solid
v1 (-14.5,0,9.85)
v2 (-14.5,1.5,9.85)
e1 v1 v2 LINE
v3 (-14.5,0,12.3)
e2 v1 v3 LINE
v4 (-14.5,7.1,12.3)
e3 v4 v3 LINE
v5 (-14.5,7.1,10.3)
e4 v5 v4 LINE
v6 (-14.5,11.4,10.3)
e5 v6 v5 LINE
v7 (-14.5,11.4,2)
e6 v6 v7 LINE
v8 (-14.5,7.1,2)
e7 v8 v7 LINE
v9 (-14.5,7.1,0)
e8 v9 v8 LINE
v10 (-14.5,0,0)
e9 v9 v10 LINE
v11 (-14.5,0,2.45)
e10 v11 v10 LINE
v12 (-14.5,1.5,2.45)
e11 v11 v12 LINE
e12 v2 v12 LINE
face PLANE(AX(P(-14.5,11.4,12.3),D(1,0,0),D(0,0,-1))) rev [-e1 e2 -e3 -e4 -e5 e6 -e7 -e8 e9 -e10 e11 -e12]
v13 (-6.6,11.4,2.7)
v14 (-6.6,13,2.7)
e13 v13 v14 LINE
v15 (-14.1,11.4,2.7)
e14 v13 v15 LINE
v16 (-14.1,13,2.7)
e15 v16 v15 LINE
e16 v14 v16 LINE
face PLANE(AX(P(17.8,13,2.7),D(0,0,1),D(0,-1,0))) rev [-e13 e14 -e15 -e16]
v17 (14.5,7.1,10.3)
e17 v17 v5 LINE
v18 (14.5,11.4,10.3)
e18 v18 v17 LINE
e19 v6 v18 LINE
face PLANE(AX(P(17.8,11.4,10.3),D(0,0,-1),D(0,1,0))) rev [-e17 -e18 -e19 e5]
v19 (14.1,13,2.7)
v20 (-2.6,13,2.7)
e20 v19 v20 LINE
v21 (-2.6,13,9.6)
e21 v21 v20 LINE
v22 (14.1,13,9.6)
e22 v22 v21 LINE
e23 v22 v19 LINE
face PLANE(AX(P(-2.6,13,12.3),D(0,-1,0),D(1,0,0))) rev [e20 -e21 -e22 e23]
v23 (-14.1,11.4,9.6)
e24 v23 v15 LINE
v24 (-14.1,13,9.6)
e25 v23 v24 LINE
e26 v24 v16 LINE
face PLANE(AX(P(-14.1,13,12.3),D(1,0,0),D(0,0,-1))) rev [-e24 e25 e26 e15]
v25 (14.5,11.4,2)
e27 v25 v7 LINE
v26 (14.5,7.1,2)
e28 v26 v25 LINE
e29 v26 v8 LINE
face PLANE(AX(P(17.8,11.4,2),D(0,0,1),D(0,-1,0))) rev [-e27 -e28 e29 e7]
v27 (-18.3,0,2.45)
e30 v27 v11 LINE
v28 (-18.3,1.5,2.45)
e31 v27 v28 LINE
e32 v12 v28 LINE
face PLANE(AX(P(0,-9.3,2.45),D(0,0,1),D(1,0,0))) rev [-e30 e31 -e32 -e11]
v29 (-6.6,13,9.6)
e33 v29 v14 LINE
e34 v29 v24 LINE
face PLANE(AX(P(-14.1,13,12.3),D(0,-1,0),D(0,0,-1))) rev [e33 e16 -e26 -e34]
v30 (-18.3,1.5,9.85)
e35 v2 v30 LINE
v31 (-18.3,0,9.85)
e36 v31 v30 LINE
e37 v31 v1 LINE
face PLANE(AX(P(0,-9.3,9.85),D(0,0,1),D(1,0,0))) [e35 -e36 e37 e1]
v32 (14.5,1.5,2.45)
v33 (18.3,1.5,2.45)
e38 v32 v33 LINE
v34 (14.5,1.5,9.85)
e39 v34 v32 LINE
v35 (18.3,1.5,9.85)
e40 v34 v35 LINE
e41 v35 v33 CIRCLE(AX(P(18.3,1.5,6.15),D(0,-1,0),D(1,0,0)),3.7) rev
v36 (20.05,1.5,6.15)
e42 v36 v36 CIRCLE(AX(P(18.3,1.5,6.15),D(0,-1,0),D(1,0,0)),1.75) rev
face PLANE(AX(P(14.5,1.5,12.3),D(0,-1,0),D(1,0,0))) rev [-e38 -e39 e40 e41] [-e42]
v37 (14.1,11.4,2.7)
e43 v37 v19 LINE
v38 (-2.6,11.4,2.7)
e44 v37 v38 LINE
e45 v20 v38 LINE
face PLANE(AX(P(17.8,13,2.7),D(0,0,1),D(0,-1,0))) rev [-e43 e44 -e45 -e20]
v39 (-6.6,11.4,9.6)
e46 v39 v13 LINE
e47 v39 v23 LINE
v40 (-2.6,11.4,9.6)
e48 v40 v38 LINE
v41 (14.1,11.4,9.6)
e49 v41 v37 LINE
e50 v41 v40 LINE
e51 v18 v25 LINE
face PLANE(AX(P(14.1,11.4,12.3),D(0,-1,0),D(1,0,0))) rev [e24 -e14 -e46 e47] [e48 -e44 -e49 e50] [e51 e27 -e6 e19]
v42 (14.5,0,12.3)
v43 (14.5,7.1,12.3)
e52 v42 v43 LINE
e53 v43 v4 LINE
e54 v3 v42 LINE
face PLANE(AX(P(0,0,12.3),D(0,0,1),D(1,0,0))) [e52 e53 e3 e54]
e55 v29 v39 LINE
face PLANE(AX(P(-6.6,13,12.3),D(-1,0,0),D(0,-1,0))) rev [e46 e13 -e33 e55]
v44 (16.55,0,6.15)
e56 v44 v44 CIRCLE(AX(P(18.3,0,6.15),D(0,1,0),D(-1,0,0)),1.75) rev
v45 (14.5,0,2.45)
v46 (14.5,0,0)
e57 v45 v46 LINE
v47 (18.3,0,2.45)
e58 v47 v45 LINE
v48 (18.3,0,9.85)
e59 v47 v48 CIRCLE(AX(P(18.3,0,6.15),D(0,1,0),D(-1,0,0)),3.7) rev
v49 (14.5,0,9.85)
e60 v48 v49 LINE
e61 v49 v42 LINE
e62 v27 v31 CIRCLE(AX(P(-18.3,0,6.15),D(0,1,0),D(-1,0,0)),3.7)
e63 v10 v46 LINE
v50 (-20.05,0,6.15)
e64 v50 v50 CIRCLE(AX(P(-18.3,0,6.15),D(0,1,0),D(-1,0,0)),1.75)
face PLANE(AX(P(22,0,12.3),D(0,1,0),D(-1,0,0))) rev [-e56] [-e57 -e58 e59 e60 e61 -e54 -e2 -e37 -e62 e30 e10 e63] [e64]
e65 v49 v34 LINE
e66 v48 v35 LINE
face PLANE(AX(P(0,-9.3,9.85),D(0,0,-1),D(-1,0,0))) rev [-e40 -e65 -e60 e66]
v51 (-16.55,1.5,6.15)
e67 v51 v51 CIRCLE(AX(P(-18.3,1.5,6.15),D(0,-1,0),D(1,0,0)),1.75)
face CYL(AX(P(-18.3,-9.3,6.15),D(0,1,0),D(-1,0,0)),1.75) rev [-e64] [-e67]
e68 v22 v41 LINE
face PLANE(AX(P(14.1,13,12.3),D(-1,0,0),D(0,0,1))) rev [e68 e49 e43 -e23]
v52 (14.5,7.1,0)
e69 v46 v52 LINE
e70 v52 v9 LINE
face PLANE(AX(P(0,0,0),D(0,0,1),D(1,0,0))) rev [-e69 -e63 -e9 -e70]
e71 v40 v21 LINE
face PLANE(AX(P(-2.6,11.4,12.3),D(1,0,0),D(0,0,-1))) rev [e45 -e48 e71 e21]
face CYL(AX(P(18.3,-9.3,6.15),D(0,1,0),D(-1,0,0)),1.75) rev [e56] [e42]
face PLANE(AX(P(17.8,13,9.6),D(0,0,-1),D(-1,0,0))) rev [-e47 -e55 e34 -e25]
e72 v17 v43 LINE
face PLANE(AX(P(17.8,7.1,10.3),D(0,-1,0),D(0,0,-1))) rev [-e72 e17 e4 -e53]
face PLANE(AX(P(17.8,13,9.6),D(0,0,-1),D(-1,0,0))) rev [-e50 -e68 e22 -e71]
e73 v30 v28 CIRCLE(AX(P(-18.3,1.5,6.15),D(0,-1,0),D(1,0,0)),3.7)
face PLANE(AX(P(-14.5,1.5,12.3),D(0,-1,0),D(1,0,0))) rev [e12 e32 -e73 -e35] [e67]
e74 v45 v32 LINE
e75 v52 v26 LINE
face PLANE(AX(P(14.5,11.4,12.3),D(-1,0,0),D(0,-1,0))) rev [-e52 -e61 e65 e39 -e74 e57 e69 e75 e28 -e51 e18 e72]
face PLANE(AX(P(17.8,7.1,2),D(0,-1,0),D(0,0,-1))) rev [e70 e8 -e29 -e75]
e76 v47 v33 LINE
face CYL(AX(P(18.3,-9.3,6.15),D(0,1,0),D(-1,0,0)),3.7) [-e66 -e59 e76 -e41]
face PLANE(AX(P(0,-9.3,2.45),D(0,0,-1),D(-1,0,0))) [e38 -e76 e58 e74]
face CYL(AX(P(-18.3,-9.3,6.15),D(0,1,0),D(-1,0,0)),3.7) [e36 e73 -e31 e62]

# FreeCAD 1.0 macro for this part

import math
import FreeCAD as App
import Part
import Sketcher
from FreeCAD import Vector
Q = App.Units.Quantity


def add_polygon(sketch, points):
    """Adds a closed chain of lines whose ends are joined by coincident constraints."""
    first, n = sketch.GeometryCount, len(points)
    for a, b in zip(points, points[1:] + points[:1]):
        sketch.addGeometry(Part.LineSegment(App.Vector(*a, 0), App.Vector(*b, 0)), False)
    for i in range(n):
        sketch.addConstraint(Sketcher.Constraint("Coincident", first + i, 2, first + (i + 1) % n, 1))

doc = App.newDocument("Part")
body = doc.addObject("PartDesign::Body", "Body")

sketch1 = doc.addObject("Sketcher::SketchObject", "Sketch")
body.addObject(sketch1)
sketch1.AttachmentSupport = (doc.XY_Plane, [""])
sketch1.MapMode = "FlatFace"
add_polygon(sketch1, [(-14.1, 13), (-14.1, 11.4), (-14.5, 11.4), (-14.5, 1.5), (-22, 1.5), (-22, 0), (22, 0), (22, 1.5), (14.5, 1.5), (14.5, 11.4), (14.1, 11.4), (14.1, 13), (-2.6, 13), (-2.6, 11.4), (-6.6, 11.4), (-6.6, 13)])
sketch1.addConstraint(Sketcher.Constraint("Vertical", 0))
sketch1.addConstraint(Sketcher.Constraint("Horizontal", 1))
sketch1.addConstraint(Sketcher.Constraint("Vertical", 2))
sketch1.addConstraint(Sketcher.Constraint("Horizontal", 3))
sketch1.addConstraint(Sketcher.Constraint("Vertical", 4))
sketch1.addConstraint(Sketcher.Constraint("Horizontal", 5))
sketch1.addConstraint(Sketcher.Constraint("Vertical", 6))
sketch1.addConstraint(Sketcher.Constraint("Horizontal", 7))
sketch1.addConstraint(Sketcher.Constraint("Vertical", 8))
sketch1.addConstraint(Sketcher.Constraint("Horizontal", 9))
sketch1.addConstraint(Sketcher.Constraint("Vertical", 10))
sketch1.addConstraint(Sketcher.Constraint("Horizontal", 11))
sketch1.addConstraint(Sketcher.Constraint("Vertical", 12))
sketch1.addConstraint(Sketcher.Constraint("Horizontal", 13))
sketch1.addConstraint(Sketcher.Constraint("Vertical", 14))
sketch1.addConstraint(Sketcher.Constraint("Horizontal", 15))
sketch1.addConstraint(Sketcher.Constraint("Symmetric", 4, 2, 5, 2, -1, 1))
sketch1.addConstraint(Sketcher.Constraint("Symmetric", 2, 2, 7, 2, -2))
sketch1.addConstraint(Sketcher.Constraint("Symmetric", 0, 2, 9, 2, -2))
sketch1.addConstraint(Sketcher.Constraint("Horizontal", 9, 2, 12, 2))
sketch1.addConstraint(Sketcher.Constraint("Horizontal", 11, 2, 14, 2))
sketch1.addConstraint(Sketcher.Constraint("Equal", 7, 15))
sketch1.addConstraint(Sketcher.Constraint("DistanceX", 5, 1, 5, 2, Q("44 mm")))
sketch1.addConstraint(Sketcher.Constraint("DistanceX", 13, 2, 13, 1, Q("4 mm")))
sketch1.addConstraint(Sketcher.Constraint("DistanceX", 1, 2, 1, 1, Q("0.4 mm")))
sketch1.addConstraint(Sketcher.Constraint("DistanceX", 3, 2, 3, 1, Q("7.5 mm")))
sketch1.addConstraint(Sketcher.Constraint("DistanceY", 0, 2, 0, 1, Q("1.6 mm")))
sketch1.addConstraint(Sketcher.Constraint("DistanceY", 2, 2, 2, 1, Q("9.9 mm")))
sketch1.addConstraint(Sketcher.Constraint("DistanceY", 4, 2, 4, 1, Q("1.5 mm")))
pad1 = doc.addObject("PartDesign::Pad", "Pad")
body.addObject(pad1)
pad1.Profile = sketch1
pad1.Length = 12.3

sketch2 = doc.addObject("Sketcher::SketchObject", "Sketch001")
body.addObject(sketch2)
sketch2.AttachmentSupport = (doc.XZ_Plane, [""])
sketch2.MapMode = "FlatFace"
sketch2.AttachmentOffset = App.Placement(Vector(0, 0, -13), App.Rotation())
sketch2.addGeometry(Part.ArcOfCircle(Part.Circle(Vector(-18.3, 6.15, 0), Vector(0, 0, 1), 3.7), math.radians(90), math.radians(180)), False)
sketch2.addGeometry(Part.LineSegment(Vector(-22, 6.15, 0), Vector(-22, 12.3, 0)), False)
sketch2.addGeometry(Part.LineSegment(Vector(-22, 12.3, 0), Vector(-14.5, 12.3, 0)), False)
sketch2.addGeometry(Part.LineSegment(Vector(-14.5, 12.3, 0), Vector(-14.5, 9.85, 0)), False)
sketch2.addGeometry(Part.LineSegment(Vector(-14.5, 9.85, 0), Vector(-18.3, 9.85, 0)), False)
sketch2.addGeometry(Part.ArcOfCircle(Part.Circle(Vector(-18.3, 6.15, 0), Vector(0, 0, 1), 3.7), math.radians(-180), math.radians(-90)), False)
sketch2.addGeometry(Part.LineSegment(Vector(-18.3, 2.45, 0), Vector(-14.5, 2.45, 0)), False)
sketch2.addGeometry(Part.LineSegment(Vector(-14.5, 2.45, 0), Vector(-14.5, 0, 0)), False)
sketch2.addGeometry(Part.LineSegment(Vector(-14.5, 0, 0), Vector(-22, 0, 0)), False)
sketch2.addGeometry(Part.LineSegment(Vector(-22, 0, 0), Vector(-22, 6.15, 0)), False)
sketch2.addGeometry(Part.ArcOfCircle(Part.Circle(Vector(18.3, 6.15, 0), Vector(0, 0, 1), 3.7), math.radians(-90), math.radians(0)), False)
sketch2.addGeometry(Part.LineSegment(Vector(22, 6.15, 0), Vector(22, 0, 0)), False)
sketch2.addGeometry(Part.LineSegment(Vector(22, 0, 0), Vector(14.5, 0, 0)), False)
sketch2.addGeometry(Part.LineSegment(Vector(14.5, 0, 0), Vector(14.5, 2.45, 0)), False)
sketch2.addGeometry(Part.LineSegment(Vector(14.5, 2.45, 0), Vector(18.3, 2.45, 0)), False)
sketch2.addGeometry(Part.LineSegment(Vector(14.5, 12.3, 0), Vector(22, 12.3, 0)), False)
sketch2.addGeometry(Part.LineSegment(Vector(22, 12.3, 0), Vector(22, 6.15, 0)), False)
sketch2.addGeometry(Part.ArcOfCircle(Part.Circle(Vector(18.3, 6.15, 0), Vector(0, 0, 1), 3.7), math.radians(0), math.radians(90)), False)
sketch2.addGeometry(Part.LineSegment(Vector(18.3, 9.85, 0), Vector(14.5, 9.85, 0)), False)
sketch2.addGeometry(Part.LineSegment(Vector(14.5, 9.85, 0), Vector(14.5, 12.3, 0)), False)
sketch2.addGeometry(Part.Circle(Vector(-18.3, 6.15, 0), Vector(0, 0, 1), 1.75), False)
sketch2.addGeometry(Part.Circle(Vector(18.3, 6.15, 0), Vector(0, 0, 1), 1.75), False)
sketch2.addConstraint(Sketcher.Constraint("Tangent", 0, 2, 1, 1))
sketch2.addConstraint(Sketcher.Constraint("Coincident", 1, 2, 2, 1))
sketch2.addConstraint(Sketcher.Constraint("Coincident", 2, 2, 3, 1))
sketch2.addConstraint(Sketcher.Constraint("Coincident", 3, 2, 4, 1))
sketch2.addConstraint(Sketcher.Constraint("Tangent", 4, 2, 0, 1))
sketch2.addConstraint(Sketcher.Constraint("Tangent", 5, 2, 6, 1))
sketch2.addConstraint(Sketcher.Constraint("Coincident", 6, 2, 7, 1))
sketch2.addConstraint(Sketcher.Constraint("Coincident", 7, 2, 8, 1))
sketch2.addConstraint(Sketcher.Constraint("Coincident", 8, 2, 9, 1))
sketch2.addConstraint(Sketcher.Constraint("Tangent", 9, 2, 5, 1))
sketch2.addConstraint(Sketcher.Constraint("Tangent", 10, 2, 11, 1))
sketch2.addConstraint(Sketcher.Constraint("Coincident", 11, 2, 12, 1))
sketch2.addConstraint(Sketcher.Constraint("Coincident", 12, 2, 13, 1))
sketch2.addConstraint(Sketcher.Constraint("Coincident", 13, 2, 14, 1))
sketch2.addConstraint(Sketcher.Constraint("Tangent", 14, 2, 10, 1))
sketch2.addConstraint(Sketcher.Constraint("Coincident", 15, 2, 16, 1))
sketch2.addConstraint(Sketcher.Constraint("Tangent", 16, 2, 17, 1))
sketch2.addConstraint(Sketcher.Constraint("Tangent", 17, 2, 18, 1))
sketch2.addConstraint(Sketcher.Constraint("Coincident", 18, 2, 19, 1))
sketch2.addConstraint(Sketcher.Constraint("Coincident", 19, 2, 15, 1))
sketch2.addConstraint(Sketcher.Constraint("Vertical", 1))
sketch2.addConstraint(Sketcher.Constraint("Horizontal", 2))
sketch2.addConstraint(Sketcher.Constraint("Vertical", 3))
sketch2.addConstraint(Sketcher.Constraint("Horizontal", 4))
sketch2.addConstraint(Sketcher.Constraint("Horizontal", 6))
sketch2.addConstraint(Sketcher.Constraint("Vertical", 7))
sketch2.addConstraint(Sketcher.Constraint("Horizontal", 8))
sketch2.addConstraint(Sketcher.Constraint("Vertical", 9))
sketch2.addConstraint(Sketcher.Constraint("Vertical", 11))
sketch2.addConstraint(Sketcher.Constraint("Horizontal", 12))
sketch2.addConstraint(Sketcher.Constraint("Vertical", 13))
sketch2.addConstraint(Sketcher.Constraint("Horizontal", 14))
sketch2.addConstraint(Sketcher.Constraint("Horizontal", 15))
sketch2.addConstraint(Sketcher.Constraint("Vertical", 16))
sketch2.addConstraint(Sketcher.Constraint("Horizontal", 18))
sketch2.addConstraint(Sketcher.Constraint("Vertical", 19))
sketch2.addConstraint(Sketcher.Constraint("Coincident", 5, 3, 0, 3))
sketch2.addConstraint(Sketcher.Constraint("Coincident", 17, 3, 10, 3))
sketch2.addConstraint(Sketcher.Constraint("Coincident", 20, 3, 0, 3))
sketch2.addConstraint(Sketcher.Constraint("Coincident", 21, 3, 10, 3))
sketch2.addConstraint(Sketcher.Constraint("Equal", 0, 5))
sketch2.addConstraint(Sketcher.Constraint("Equal", 5, 10))
sketch2.addConstraint(Sketcher.Constraint("Equal", 10, 17))
sketch2.addConstraint(Sketcher.Constraint("Equal", 20, 21))
sketch2.addConstraint(Sketcher.Constraint("Symmetric", 8, 2, 11, 2, -1, 1))
sketch2.addConstraint(Sketcher.Constraint("Symmetric", 7, 2, 12, 2, -2))
sketch2.addConstraint(Sketcher.Constraint("Symmetric", 3, 2, 18, 2, -2))
sketch2.addConstraint(Sketcher.Constraint("Horizontal", 2, 2, 15, 2))
sketch2.addConstraint(Sketcher.Constraint("Vertical", 3, 2, 6, 2))
sketch2.addConstraint(Sketcher.Constraint("Equal", 3, 7))
sketch2.addConstraint(Sketcher.Constraint("Diameter", 20, Q("3.5 mm")))
sketch2.addConstraint(Sketcher.Constraint("Radius", 0, Q("3.7 mm")))
sketch2.addConstraint(Sketcher.Constraint("DistanceX", 2, 1, 2, 2, Q("7.5 mm")))
sketch2.addConstraint(Sketcher.Constraint("DistanceX", 0, 2, -1, 1, Q("22 mm")))
sketch2.addConstraint(Sketcher.Constraint("DistanceY", 1, 1, 1, 2, Q("6.15 mm")))
pocket1 = doc.addObject("PartDesign::Pocket", "Pocket")
body.addObject(pocket1)
pocket1.Profile = sketch2
pocket1.Length = 22.3
pocket1.Reversed = True

sketch3 = doc.addObject("Sketcher::SketchObject", "Sketch002")
body.addObject(sketch3)
sketch3.AttachmentSupport = (doc.YZ_Plane, [""])
sketch3.MapMode = "FlatFace"
sketch3.AttachmentOffset = App.Placement(Vector(0, 0, -14.5), App.Rotation())
add_polygon(sketch3, [(11.4, 2.7), (13, 2.7), (13, 0), (7.1, 0), (7.1, 2), (11.4, 2)])
add_polygon(sketch3, [(7.1, 12.3), (13, 12.3), (13, 9.6), (11.4, 9.6), (11.4, 10.3), (7.1, 10.3)])
sketch3.addConstraint(Sketcher.Constraint("Horizontal", 0))
sketch3.addConstraint(Sketcher.Constraint("Vertical", 1))
sketch3.addConstraint(Sketcher.Constraint("Horizontal", 2))
sketch3.addConstraint(Sketcher.Constraint("Vertical", 3))
sketch3.addConstraint(Sketcher.Constraint("Horizontal", 4))
sketch3.addConstraint(Sketcher.Constraint("Vertical", 5))
sketch3.addConstraint(Sketcher.Constraint("Horizontal", 6))
sketch3.addConstraint(Sketcher.Constraint("Vertical", 7))
sketch3.addConstraint(Sketcher.Constraint("Horizontal", 8))
sketch3.addConstraint(Sketcher.Constraint("Vertical", 9))
sketch3.addConstraint(Sketcher.Constraint("Horizontal", 10))
sketch3.addConstraint(Sketcher.Constraint("Vertical", 11))
sketch3.addConstraint(Sketcher.Constraint("PointOnObject", 1, 2, -1))
sketch3.addConstraint(Sketcher.Constraint("Vertical", 1, 2, 6, 2))
sketch3.addConstraint(Sketcher.Constraint("Vertical", 5, 2, 8, 2))
sketch3.addConstraint(Sketcher.Constraint("Vertical", 3, 2, 10, 2))
sketch3.addConstraint(Sketcher.Constraint("Equal", 1, 7))
sketch3.addConstraint(Sketcher.Constraint("Equal", 5, 9))
sketch3.addConstraint(Sketcher.Constraint("DistanceY", 3, 1, 3, 2, Q("2 mm")))
sketch3.addConstraint(Sketcher.Constraint("DistanceX", 0, 1, 0, 2, Q("1.6 mm")))
sketch3.addConstraint(Sketcher.Constraint("DistanceX", 2, 2, 2, 1, Q("5.9 mm")))
sketch3.addConstraint(Sketcher.Constraint("DistanceY", 1, 2, 1, 1, Q("2.7 mm")))
sketch3.addConstraint(Sketcher.Constraint("DistanceX", -1, 1, 0, 2, Q("13 mm")))
sketch3.addConstraint(Sketcher.Constraint("DistanceY", -1, 1, 6, 2, Q("12.3 mm")))
pocket2 = doc.addObject("PartDesign::Pocket", "Pocket001")
body.addObject(pocket2)
pocket2.Profile = sketch3
pocket2.Length = 32.3
pocket2.Reversed = True

doc.recompute()
